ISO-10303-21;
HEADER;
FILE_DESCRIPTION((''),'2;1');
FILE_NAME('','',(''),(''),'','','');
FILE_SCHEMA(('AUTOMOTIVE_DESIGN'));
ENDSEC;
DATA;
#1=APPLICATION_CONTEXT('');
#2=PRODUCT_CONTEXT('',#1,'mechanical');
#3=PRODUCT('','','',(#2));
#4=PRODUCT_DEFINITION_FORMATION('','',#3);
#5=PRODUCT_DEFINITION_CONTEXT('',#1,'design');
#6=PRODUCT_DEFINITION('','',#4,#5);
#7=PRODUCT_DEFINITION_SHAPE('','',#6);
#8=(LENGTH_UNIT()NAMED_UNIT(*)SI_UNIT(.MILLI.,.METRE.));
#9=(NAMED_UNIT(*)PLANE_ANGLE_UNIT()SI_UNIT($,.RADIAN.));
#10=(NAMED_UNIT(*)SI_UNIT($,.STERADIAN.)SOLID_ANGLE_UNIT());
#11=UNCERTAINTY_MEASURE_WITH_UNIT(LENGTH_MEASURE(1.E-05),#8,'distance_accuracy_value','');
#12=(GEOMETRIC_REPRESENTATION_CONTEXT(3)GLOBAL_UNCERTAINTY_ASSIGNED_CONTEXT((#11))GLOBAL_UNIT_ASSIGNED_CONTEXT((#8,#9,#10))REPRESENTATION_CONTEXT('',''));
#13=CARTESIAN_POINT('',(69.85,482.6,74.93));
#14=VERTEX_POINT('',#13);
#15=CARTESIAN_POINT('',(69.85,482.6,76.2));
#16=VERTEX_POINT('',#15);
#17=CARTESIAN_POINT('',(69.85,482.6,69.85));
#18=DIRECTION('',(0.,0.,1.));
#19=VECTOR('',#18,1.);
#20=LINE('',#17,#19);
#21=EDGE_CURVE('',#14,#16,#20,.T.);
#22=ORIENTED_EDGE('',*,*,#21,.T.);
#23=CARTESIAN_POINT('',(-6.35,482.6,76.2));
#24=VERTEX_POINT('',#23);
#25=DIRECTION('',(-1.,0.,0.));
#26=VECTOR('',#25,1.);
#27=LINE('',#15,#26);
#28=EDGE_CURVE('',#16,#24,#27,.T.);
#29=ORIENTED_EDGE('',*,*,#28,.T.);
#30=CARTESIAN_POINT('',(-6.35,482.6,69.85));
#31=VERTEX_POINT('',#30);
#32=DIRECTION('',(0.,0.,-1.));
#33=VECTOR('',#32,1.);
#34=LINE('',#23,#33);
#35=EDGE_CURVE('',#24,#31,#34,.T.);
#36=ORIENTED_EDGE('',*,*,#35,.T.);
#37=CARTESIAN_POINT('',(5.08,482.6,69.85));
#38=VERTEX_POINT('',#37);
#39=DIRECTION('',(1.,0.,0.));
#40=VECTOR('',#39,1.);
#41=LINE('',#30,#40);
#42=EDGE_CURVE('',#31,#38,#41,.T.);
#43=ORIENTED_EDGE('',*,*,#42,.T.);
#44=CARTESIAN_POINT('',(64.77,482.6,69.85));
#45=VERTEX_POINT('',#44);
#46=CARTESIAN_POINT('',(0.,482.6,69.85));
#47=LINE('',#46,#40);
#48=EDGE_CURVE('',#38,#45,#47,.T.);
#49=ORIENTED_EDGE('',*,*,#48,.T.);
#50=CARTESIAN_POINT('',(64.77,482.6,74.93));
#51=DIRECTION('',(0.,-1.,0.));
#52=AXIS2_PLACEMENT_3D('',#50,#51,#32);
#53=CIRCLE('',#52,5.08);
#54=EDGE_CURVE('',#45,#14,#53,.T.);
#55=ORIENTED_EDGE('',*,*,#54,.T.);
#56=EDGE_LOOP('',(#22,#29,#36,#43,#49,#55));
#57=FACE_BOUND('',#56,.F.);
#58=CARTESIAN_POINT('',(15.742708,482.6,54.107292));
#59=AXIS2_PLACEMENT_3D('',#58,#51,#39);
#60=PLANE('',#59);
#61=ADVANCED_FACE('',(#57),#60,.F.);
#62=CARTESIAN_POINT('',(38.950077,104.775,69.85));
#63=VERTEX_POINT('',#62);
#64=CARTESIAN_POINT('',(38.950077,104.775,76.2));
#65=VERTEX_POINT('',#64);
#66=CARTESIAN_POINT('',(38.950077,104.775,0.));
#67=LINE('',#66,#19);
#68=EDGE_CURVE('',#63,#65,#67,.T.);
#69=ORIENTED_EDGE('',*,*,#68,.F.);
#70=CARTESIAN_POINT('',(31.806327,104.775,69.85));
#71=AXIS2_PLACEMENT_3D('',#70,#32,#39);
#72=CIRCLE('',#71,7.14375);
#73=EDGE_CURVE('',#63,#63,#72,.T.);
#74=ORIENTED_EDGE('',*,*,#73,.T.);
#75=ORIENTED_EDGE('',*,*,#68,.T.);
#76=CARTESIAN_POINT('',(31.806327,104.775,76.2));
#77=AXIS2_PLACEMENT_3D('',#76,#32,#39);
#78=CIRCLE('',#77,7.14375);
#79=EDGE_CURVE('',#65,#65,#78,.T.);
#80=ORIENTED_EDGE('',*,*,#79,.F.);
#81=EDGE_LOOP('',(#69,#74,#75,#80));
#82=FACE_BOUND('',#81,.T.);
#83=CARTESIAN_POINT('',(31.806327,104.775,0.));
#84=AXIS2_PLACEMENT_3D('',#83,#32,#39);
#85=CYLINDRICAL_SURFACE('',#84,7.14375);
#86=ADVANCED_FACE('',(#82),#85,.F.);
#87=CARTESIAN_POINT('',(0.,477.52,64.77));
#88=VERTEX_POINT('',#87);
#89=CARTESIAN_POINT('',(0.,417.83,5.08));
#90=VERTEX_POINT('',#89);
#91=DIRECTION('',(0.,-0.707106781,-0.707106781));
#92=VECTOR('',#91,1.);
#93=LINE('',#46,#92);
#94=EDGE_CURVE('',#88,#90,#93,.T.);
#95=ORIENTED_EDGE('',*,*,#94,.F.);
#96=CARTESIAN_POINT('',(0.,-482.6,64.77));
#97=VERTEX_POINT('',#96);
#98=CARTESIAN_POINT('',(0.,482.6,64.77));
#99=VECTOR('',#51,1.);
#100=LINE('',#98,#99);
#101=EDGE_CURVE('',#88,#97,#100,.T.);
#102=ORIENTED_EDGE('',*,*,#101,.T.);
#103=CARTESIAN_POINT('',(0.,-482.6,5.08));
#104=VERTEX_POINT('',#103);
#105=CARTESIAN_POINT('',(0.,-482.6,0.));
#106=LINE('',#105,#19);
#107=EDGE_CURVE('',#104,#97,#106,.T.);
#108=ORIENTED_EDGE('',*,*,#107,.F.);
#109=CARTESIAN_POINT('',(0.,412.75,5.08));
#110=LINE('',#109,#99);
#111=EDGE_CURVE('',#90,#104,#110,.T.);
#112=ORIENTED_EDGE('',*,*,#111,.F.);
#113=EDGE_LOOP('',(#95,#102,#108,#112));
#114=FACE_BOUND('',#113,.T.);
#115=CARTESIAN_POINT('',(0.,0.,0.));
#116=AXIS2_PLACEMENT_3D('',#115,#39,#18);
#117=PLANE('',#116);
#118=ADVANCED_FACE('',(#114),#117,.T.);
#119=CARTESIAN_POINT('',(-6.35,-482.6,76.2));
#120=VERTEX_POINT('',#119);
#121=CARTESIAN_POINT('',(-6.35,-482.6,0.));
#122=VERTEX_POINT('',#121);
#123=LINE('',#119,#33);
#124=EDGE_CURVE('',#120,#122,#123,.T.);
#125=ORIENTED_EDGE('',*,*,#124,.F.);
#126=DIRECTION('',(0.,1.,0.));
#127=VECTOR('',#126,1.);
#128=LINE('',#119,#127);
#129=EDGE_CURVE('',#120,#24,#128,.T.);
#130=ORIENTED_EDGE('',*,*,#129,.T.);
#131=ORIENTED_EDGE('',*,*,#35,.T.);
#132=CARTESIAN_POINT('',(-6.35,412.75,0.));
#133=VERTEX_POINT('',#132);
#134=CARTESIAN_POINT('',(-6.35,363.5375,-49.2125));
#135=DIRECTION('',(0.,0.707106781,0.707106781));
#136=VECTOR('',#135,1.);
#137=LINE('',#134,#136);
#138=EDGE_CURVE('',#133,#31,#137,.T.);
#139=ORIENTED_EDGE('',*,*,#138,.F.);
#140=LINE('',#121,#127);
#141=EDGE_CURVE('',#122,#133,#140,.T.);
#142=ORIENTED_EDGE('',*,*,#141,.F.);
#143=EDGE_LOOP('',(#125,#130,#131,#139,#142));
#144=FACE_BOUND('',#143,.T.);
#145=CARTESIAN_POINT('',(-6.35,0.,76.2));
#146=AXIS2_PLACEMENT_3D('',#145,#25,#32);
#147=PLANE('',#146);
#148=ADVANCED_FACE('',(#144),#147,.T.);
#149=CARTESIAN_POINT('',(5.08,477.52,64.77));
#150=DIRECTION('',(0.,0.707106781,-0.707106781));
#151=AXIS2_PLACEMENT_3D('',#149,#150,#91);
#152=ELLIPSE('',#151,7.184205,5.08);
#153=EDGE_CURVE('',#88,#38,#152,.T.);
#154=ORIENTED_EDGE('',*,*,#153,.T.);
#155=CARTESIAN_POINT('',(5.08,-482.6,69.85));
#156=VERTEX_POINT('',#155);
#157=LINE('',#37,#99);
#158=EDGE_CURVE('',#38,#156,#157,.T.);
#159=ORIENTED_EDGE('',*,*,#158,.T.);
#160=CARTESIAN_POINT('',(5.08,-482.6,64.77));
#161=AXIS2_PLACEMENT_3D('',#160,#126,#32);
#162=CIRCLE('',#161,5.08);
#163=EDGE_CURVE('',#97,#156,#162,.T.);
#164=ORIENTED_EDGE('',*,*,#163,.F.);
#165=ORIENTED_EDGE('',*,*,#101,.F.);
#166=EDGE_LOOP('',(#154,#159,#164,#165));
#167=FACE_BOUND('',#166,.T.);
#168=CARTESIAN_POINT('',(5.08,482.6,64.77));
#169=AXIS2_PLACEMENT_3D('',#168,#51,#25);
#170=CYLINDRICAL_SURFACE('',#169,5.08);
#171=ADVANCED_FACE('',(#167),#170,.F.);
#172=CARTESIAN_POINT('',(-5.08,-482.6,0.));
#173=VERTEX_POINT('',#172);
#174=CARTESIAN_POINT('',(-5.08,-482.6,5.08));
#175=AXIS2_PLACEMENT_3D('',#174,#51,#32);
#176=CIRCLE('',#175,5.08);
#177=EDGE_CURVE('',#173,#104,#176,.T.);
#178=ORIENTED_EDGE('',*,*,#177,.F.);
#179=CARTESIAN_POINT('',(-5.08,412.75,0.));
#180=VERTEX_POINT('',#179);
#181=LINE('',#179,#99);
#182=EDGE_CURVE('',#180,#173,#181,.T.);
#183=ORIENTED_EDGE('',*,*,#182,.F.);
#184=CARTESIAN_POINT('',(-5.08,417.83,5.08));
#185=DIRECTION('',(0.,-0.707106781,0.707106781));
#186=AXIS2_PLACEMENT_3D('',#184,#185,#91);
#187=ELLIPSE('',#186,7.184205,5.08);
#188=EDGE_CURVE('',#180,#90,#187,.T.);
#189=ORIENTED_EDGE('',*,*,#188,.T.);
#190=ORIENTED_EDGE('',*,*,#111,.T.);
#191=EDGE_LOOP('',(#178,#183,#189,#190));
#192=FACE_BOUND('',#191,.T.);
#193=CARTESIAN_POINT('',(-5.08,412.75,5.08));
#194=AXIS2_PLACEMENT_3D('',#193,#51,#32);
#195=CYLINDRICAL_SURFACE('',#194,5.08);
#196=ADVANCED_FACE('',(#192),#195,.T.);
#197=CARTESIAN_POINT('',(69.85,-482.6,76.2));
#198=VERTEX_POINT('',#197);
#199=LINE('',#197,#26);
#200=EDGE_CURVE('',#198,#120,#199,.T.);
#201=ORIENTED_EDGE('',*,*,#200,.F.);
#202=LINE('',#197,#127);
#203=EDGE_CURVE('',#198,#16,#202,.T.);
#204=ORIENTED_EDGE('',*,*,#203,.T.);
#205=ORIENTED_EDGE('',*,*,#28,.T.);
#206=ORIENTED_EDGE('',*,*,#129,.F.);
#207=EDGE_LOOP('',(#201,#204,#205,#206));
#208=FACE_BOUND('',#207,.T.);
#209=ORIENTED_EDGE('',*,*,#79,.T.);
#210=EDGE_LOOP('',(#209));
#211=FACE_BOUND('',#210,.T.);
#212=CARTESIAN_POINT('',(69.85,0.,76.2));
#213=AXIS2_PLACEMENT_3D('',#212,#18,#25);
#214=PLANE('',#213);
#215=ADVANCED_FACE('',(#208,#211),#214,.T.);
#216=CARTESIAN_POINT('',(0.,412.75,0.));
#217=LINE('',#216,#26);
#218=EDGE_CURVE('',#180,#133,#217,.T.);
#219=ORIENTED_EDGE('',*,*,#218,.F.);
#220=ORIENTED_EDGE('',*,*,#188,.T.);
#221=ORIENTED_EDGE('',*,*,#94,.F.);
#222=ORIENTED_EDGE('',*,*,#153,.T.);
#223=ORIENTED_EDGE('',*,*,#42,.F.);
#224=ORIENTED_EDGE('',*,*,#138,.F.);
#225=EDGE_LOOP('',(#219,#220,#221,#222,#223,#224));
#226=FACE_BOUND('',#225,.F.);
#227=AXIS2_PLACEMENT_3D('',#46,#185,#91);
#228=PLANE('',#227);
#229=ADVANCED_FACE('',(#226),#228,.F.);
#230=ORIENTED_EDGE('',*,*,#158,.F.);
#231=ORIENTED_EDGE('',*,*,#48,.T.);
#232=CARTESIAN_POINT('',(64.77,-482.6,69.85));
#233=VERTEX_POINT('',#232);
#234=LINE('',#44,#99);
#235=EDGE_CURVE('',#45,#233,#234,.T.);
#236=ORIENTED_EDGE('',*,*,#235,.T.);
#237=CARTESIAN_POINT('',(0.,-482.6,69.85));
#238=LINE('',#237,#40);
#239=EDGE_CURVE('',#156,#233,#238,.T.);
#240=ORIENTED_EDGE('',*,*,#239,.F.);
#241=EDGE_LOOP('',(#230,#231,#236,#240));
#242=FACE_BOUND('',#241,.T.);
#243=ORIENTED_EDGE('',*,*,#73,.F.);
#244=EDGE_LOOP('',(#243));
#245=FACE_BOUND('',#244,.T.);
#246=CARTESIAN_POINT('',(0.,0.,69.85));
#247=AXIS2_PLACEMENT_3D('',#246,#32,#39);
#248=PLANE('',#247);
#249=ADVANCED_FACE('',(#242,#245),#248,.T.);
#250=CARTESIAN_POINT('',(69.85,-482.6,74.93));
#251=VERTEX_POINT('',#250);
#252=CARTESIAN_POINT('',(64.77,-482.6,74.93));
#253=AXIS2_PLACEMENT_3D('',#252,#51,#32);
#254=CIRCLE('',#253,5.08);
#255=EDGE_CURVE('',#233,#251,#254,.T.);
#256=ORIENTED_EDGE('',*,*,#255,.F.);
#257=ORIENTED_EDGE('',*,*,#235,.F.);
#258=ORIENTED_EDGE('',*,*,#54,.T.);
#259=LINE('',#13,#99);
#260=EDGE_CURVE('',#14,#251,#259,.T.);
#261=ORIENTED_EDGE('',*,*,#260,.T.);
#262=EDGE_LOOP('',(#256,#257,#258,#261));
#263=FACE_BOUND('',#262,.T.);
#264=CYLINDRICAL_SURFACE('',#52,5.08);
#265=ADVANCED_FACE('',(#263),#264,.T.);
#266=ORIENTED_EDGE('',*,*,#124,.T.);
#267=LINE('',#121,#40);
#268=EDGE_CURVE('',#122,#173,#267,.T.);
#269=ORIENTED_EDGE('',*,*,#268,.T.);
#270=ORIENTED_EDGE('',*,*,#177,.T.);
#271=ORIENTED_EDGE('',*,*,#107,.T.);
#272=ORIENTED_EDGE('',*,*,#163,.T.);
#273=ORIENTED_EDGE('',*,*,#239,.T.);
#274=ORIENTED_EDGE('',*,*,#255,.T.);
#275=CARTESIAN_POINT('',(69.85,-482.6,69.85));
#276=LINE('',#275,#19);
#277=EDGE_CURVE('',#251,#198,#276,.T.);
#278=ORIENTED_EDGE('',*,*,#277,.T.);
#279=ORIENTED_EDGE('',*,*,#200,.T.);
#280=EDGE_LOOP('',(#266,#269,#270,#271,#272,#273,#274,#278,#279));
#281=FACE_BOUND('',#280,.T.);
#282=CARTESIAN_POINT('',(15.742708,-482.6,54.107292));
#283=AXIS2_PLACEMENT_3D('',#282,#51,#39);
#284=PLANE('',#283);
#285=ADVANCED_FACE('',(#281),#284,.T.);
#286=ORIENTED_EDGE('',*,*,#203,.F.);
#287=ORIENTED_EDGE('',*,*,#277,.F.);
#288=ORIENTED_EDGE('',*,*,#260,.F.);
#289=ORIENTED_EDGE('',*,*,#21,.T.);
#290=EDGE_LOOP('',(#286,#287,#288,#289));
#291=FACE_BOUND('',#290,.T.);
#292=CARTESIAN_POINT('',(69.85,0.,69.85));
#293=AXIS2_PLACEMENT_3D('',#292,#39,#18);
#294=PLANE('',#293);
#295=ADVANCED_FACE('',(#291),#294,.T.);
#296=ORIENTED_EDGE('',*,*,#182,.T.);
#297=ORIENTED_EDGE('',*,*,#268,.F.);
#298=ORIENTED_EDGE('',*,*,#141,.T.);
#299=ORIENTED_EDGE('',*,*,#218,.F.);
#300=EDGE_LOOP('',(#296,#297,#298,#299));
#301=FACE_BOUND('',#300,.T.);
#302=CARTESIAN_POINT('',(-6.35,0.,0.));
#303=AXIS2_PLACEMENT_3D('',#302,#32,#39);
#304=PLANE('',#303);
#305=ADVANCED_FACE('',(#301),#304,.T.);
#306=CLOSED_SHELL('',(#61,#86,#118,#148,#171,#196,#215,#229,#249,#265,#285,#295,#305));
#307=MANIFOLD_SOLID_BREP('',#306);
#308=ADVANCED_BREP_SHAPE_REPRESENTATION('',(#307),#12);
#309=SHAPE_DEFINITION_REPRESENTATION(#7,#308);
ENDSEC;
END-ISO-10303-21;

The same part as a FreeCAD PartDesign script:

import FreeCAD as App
import Part
import Sketcher
Q = App.Units.Quantity


def edges_at(feature, points):
    """Names of the edges that pass closest to the given points."""
    edges = feature.Shape.Edges
    near = lambda p: min(range(len(edges)), key=lambda i: edges[i].distToShape(Part.Vertex(*p))[0])
    return sorted({f"Edge{near(p) + 1}" for p in points})


def add_polygon(sketch, points):
    """Adds a closed chain of lines whose ends are joined by coincident constraints."""
    first, n = sketch.GeometryCount, len(points)
    for a, b in zip(points, points[1:] + points[:1]):
        sketch.addGeometry(Part.LineSegment(App.Vector(*a, 0), App.Vector(*b, 0)), False)
    for i in range(n):
        sketch.addConstraint(Sketcher.Constraint("Coincident", first + i, 2, first + (i + 1) % n, 1))

doc = App.newDocument("Part")
body = doc.addObject("PartDesign::Body", "Body")

sketch1 = body.newObject("Sketcher::SketchObject", "Sketch")
sketch1.AttachmentSupport = (doc.getObject("XZ_Plane"), [""])
sketch1.MapMode = "FlatFace"
add_polygon(sketch1, [(-6.35, 0), (0, 0), (0, 69.85), (69.85, 69.85), (69.85, 76.2), (-6.35, 76.2)])
sketch1.addConstraint([
    Sketcher.Constraint("Horizontal", 0),
    Sketcher.Constraint("Vertical", 1),
    Sketcher.Constraint("Horizontal", 2),
    Sketcher.Constraint("Vertical", 3),
    Sketcher.Constraint("Horizontal", 4),
    Sketcher.Constraint("Vertical", 5),
    Sketcher.Constraint("Coincident", 0, 2, -1, 1),
    Sketcher.Constraint("Equal", 2, 1),
    Sketcher.Constraint("Equal", 0, 3),
    Sketcher.Constraint("DistanceX", 4, 2, 4, 1, Q("3 in")),
    Sketcher.Constraint("DistanceX", 0, 1, 0, 2, Q("0.25 in")),
])
pad1 = body.newObject("PartDesign::Pad", "Pad")
pad1.Profile = sketch1
pad1.Length = Q("38 in")
pad1.Midplane = True

sketch2 = body.newObject("Sketcher::SketchObject", "Sketch001")
sketch2.AttachmentSupport = (doc.getObject("YZ_Plane"), [""])
sketch2.MapMode = "FlatFace"
add_polygon(sketch2, [(482.6, 0), (482.6, 69.85), (412.75, 0)])
sketch2.addConstraint([
    Sketcher.Constraint("Vertical", 0),
    Sketcher.Constraint("Horizontal", 2),
    Sketcher.Constraint("PointOnObject", 1, 2, -1),
    Sketcher.Constraint("Equal", 2, 0),
    Sketcher.Constraint("DistanceX", -1, 1, 0, 2, Q("19 in")),
    Sketcher.Constraint("DistanceX", 2, 1, 2, 2, Q("2.75 in")),
])
pocket1 = body.newObject("PartDesign::Pocket", "Pocket")
pocket1.Profile = sketch2
pocket1.Type = "ThroughAll"
doc.recompute()

fillet = body.newObject("PartDesign::Fillet", "Fillet")
fillet.Base = (pocket1, edges_at(pocket1, [(0, 0, 69.85), (69.85, 0, 69.85), (0, -34.925, 0)]))
fillet.Radius = Q("0.2 in")

sketch3 = body.newObject("Sketcher::SketchObject", "Sketch002")
sketch3.AttachmentSupport = (doc.getObject("XY_Plane"), [""])
sketch3.MapMode = "FlatFace"
sketch3.addGeometry(Part.Circle(App.Vector(31.806327, 104.775, 0), App.Vector(0, 0, 1), 7.14375), False)
sketch3.addConstraint([
    Sketcher.Constraint("Diameter", 0, Q("0.5625 in")),
    Sketcher.Constraint("DistanceY", -1, 1, 0, 3, Q("4.125 in")),
    Sketcher.Constraint("DistanceX", -1, 1, 0, 3, Q("31.806327 mm")),
])
pocket2 = body.newObject("PartDesign::Pocket", "Pocket001")
pocket2.Profile = sketch3
pocket2.Length = Q("4 in")
pocket2.Reversed = True

doc.recompute()
